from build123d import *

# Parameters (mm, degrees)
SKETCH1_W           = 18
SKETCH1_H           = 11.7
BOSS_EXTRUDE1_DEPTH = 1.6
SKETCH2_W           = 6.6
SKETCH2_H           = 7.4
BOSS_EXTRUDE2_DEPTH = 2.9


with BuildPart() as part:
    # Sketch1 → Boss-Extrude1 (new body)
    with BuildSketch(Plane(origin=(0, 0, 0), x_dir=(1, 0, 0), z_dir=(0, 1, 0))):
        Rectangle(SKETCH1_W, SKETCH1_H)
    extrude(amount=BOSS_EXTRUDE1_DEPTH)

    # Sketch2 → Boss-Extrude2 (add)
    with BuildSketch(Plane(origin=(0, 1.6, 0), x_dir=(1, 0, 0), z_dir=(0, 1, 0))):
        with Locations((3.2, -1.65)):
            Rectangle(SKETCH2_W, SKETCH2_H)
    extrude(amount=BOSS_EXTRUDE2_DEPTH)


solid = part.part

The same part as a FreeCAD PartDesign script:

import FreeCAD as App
import Part
import Sketcher

V = App.Vector

doc = App.newDocument("Part")
params = doc.addObject("Spreadsheet::Sheet", "Params")
for row, (alias, value) in enumerate([
    ("sketch1_width", "18 mm"),
    ("sketch1_height", "11.7 mm"),
    ("pad1_length", "1.6 mm"),
    ("sketch2_width", "6.6 mm"),
    ("sketch2_height", "7.4 mm"),
    ("pad2_length", "2.9 mm"),
], start=1):
    params.set(f"A{row}", alias)
    params.set(f"B{row}", "=" + value)
    params.setAlias(f"B{row}", alias)

body = doc.addObject("PartDesign::Body", "Body")

sketch1 = body.newObject("Sketcher::SketchObject", "Sketch")
sketch1.AttachmentSupport = (doc.getObject("XZ_Plane"), [""])
sketch1.MapMode = "FlatFace"
sketch1.addGeometry([
    Part.LineSegment(V(-9, -6, 0), V(-9, 6, 0)),
    Part.LineSegment(V(-9, 6, 0), V(9, 6, 0)),
    Part.LineSegment(V(9, 6, 0), V(9, -6, 0)),
    Part.LineSegment(V(9, -6, 0), V(-9, -6, 0)),
], False)
sketch1.addConstraint([
    Sketcher.Constraint("Coincident", 0, 2, 1, 1),
    Sketcher.Constraint("Coincident", 1, 2, 2, 1),
    Sketcher.Constraint("Coincident", 2, 2, 3, 1),
    Sketcher.Constraint("Coincident", 3, 2, 0, 1),
    Sketcher.Constraint("Vertical", 0),
    Sketcher.Constraint("Horizontal", 1),
    Sketcher.Constraint("Vertical", 2),
    Sketcher.Constraint("Horizontal", 3),
    Sketcher.Constraint("Symmetric", 0, 2, 2, 2, -1, 1),
    Sketcher.Constraint("DistanceX", 1, 1, 1, 2, 18.0),
    Sketcher.Constraint("DistanceY", 0, 1, 0, 2, 11.7),
])
sketch1.setExpression("Constraints[9]", "Params.sketch1_width")
sketch1.setExpression("Constraints[10]", "Params.sketch1_height")
pad1 = body.newObject("PartDesign::Pad", "Pad")
pad1.Profile = sketch1
pad1.setExpression("Length", "Params.pad1_length")
pad1.Reversed = True

sketch2 = body.newObject("Sketcher::SketchObject", "Sketch001")
sketch2.AttachmentSupport = (doc.getObject("XZ_Plane"), [""])
sketch2.MapMode = "FlatFace"
sketch2.AttachmentOffset = App.Placement(V(0, 0, -1.6), App.Rotation())
sketch2.addGeometry([
    Part.LineSegment(V(0, -2, 0), V(0, 5, 0)),
    Part.LineSegment(V(0, 5, 0), V(6, 5, 0)),
    Part.LineSegment(V(6, 5, 0), V(6, -2, 0)),
    Part.LineSegment(V(6, -2, 0), V(0, -2, 0)),
], False)
sketch2.addConstraint([
    Sketcher.Constraint("Coincident", 0, 2, 1, 1),
    Sketcher.Constraint("Coincident", 1, 2, 2, 1),
    Sketcher.Constraint("Coincident", 2, 2, 3, 1),
    Sketcher.Constraint("Coincident", 3, 2, 0, 1),
    Sketcher.Constraint("Vertical", 0),
    Sketcher.Constraint("Horizontal", 1),
    Sketcher.Constraint("Vertical", 2),
    Sketcher.Constraint("Horizontal", 3),
    Sketcher.Constraint("DistanceX", 1, 1, 1, 2, 6.6),
    Sketcher.Constraint("DistanceY", 0, 1, 0, 2, 7.4),
    Sketcher.Constraint("DistanceX", 0, 2, -1, 1, 0.1),
    Sketcher.Constraint("DistanceY", -1, 1, 0, 2, 5.35),
])
sketch2.setExpression("Constraints[8]", "Params.sketch2_width")
sketch2.setExpression("Constraints[9]", "Params.sketch2_height")
pad2 = body.newObject("PartDesign::Pad", "Pad001")
pad2.Profile = sketch2
pad2.setExpression("Length", "Params.pad2_length")
pad2.Reversed = True

doc.recompute()
